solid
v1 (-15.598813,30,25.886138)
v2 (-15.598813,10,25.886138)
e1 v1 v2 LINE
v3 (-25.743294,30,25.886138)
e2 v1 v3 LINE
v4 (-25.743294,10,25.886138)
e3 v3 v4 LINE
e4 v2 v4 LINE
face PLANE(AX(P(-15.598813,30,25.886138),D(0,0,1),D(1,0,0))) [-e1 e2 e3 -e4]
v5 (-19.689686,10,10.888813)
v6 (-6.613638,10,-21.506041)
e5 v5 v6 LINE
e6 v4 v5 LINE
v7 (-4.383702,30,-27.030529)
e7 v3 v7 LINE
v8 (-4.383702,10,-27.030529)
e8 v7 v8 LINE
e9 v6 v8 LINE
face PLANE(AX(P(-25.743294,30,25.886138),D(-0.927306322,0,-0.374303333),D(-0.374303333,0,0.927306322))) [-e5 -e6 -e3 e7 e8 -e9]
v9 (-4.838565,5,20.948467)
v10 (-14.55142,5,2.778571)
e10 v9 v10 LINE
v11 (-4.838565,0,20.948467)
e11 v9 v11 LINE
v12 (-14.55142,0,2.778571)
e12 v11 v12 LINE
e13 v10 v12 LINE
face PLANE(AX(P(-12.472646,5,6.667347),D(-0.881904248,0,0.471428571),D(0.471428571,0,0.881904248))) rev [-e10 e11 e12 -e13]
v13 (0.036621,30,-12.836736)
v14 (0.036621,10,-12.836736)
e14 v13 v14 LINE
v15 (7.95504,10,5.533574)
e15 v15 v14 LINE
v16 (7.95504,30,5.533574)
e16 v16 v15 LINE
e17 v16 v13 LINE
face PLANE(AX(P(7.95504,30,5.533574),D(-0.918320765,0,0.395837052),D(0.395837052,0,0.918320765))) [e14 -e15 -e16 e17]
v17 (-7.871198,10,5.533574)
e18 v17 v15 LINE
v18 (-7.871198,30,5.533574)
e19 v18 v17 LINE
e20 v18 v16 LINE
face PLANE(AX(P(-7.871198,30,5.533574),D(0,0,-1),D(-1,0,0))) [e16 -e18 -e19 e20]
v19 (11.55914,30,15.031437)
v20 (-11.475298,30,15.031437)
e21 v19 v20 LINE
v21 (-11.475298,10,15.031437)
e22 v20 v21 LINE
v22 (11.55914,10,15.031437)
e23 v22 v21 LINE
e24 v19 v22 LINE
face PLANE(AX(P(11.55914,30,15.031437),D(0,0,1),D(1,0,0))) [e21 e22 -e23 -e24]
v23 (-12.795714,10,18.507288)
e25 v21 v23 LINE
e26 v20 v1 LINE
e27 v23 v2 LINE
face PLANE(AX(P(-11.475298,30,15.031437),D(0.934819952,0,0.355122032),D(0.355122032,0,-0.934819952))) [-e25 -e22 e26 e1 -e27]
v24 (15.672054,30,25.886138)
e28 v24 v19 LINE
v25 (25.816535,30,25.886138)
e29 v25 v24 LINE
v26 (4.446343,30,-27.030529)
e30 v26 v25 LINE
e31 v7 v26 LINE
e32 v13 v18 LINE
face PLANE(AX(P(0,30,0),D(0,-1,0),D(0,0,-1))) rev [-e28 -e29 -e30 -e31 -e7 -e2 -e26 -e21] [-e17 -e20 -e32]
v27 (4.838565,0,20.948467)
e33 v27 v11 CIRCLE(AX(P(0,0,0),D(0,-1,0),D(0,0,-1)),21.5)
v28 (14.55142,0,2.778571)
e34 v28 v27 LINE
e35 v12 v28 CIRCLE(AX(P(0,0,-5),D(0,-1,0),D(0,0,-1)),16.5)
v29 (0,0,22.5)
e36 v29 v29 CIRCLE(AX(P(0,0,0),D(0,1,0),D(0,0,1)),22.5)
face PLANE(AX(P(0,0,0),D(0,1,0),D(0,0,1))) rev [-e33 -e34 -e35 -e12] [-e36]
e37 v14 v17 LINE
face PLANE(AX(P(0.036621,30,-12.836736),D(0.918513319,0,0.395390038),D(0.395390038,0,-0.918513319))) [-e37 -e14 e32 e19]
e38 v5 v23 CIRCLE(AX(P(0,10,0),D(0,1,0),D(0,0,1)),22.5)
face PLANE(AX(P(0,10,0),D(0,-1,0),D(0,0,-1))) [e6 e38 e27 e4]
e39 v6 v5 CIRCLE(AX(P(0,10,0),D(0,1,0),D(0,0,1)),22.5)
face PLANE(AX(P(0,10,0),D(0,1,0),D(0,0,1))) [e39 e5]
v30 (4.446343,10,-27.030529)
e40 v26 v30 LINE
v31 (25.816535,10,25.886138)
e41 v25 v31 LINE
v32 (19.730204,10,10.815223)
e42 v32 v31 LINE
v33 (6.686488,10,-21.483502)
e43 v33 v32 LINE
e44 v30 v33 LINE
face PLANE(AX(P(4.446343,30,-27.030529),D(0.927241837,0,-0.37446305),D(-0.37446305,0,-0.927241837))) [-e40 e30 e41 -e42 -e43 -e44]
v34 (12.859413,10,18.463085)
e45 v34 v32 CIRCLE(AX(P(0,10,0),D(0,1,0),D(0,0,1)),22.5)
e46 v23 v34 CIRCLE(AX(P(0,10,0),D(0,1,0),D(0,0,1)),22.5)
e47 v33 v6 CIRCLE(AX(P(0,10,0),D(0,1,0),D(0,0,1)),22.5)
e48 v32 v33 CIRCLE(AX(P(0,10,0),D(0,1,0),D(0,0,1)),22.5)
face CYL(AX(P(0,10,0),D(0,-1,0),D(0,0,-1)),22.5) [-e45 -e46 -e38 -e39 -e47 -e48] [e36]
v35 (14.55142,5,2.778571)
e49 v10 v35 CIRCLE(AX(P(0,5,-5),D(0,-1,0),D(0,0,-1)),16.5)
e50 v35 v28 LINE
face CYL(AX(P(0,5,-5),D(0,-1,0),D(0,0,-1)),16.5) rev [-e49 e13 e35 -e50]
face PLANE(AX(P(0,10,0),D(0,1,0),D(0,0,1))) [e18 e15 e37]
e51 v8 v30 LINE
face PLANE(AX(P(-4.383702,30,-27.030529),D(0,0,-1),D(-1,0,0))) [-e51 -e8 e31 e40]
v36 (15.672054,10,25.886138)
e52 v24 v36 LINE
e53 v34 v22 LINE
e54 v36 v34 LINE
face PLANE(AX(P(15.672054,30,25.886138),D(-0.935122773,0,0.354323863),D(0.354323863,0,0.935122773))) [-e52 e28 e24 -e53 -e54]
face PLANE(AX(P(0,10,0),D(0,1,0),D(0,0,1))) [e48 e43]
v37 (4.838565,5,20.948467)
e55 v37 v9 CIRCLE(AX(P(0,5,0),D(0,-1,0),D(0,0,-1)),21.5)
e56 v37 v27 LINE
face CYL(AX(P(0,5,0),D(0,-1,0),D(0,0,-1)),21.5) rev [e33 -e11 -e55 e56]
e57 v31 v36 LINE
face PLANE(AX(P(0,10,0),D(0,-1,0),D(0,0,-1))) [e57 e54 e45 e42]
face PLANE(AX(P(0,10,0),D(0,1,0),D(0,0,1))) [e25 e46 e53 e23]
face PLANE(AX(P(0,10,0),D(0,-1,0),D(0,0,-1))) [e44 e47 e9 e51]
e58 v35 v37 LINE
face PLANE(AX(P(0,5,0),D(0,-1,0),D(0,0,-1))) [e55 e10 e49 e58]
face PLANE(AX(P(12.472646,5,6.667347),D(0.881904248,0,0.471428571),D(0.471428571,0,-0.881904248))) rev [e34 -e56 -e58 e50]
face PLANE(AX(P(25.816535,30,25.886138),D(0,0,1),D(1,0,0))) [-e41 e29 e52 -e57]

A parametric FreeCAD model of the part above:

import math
import FreeCAD as App
import Part
import Sketcher


def add_polygon(sketch, points):
    """Adds a closed chain of lines whose ends are joined by coincident constraints."""
    first, n = sketch.GeometryCount, len(points)
    for a, b in zip(points, points[1:] + points[:1]):
        sketch.addGeometry(Part.LineSegment(App.Vector(*a, 0), App.Vector(*b, 0)), False)
    for i in range(n):
        sketch.addConstraint(Sketcher.Constraint("Coincident", first + i, 2, first + (i + 1) % n, 1))

doc = App.newDocument("Part")
body = doc.addObject("PartDesign::Body", "Body")

sketch1 = doc.addObject("Sketcher::SketchObject", "Sketch")
body.addObject(sketch1)
sketch1.AttachmentSupport = (doc.XZ_Plane, [""])
sketch1.MapMode = "FlatFace"
sketch1.addGeometry(Part.Circle(App.Vector(0, 0, 0), App.Vector(0, 0, 1), 22.5), False)
sketch1.addConstraint([
    Sketcher.Constraint("Coincident", 0, 3, -1, 1),
    Sketcher.Constraint("Diameter", 0, 45.0),
])
pad1 = doc.addObject("PartDesign::Pad", "Pad")
body.addObject(pad1)
pad1.Profile = sketch1
pad1.Length = 10
pad1.Reversed = True

sketch2 = doc.addObject("Sketcher::SketchObject", "Sketch001")
body.addObject(sketch2)
sketch2.AttachmentSupport = (doc.XZ_Plane, [""])
sketch2.MapMode = "FlatFace"
sketch2.AttachmentOffset = App.Placement(App.Vector(0, 0, -10), App.Rotation())
add_polygon(sketch2, [(4.446343, -27.030529), (-4.383702, -27.030529), (-25.743294, 25.886138), (-15.598813, 25.886138), (-11.475298, 15.031437), (11.55914, 15.031437), (15.672054, 25.886138), (25.816535, 25.886138)])
add_polygon(sketch2, [(0.036621, -12.836736), (7.95504, 5.533574), (-7.871198, 5.533574)])
sketch2.addConstraint([
    Sketcher.Constraint("Horizontal", 0),
    Sketcher.Constraint("Horizontal", 2),
    Sketcher.Constraint("Horizontal", 4),
    Sketcher.Constraint("Horizontal", 6),
    Sketcher.Constraint("Horizontal", 9),
    Sketcher.Constraint("Horizontal", 2, 2, 5, 2),
    Sketcher.Constraint("Equal", 2, 6),
    Sketcher.Constraint("DistanceX", 2, 1, 2, 2, 10.144481),
    Sketcher.Constraint("DistanceX", 4, 1, 4, 2, 23.034438),
    Sketcher.Constraint("DistanceX", 9, 2, 9, 1, 15.826239),
    Sketcher.Constraint("DistanceX", 0, 2, -1, 1, 4.383702),
    Sketcher.Constraint("DistanceX", 3, 2, -1, 1, 11.475298),
    Sketcher.Constraint("DistanceX", 9, 2, -1, 1, 7.871198),
    Sketcher.Constraint("DistanceY", 3, 2, 2, 2, 10.854701),
    Sketcher.Constraint("Distance", 3, 11.611542),
    Sketcher.Constraint("Distance", 5, 11.607782),
    Sketcher.Constraint("Distance", 8, 20.00424),
    Sketcher.Constraint("DistanceX", 0, 2, 0, 1, 8.830045),
    Sketcher.Constraint("DistanceY", 0, 2, -1, 1, 27.030529),
    Sketcher.Constraint("DistanceX", -1, 1, 10, 2, 0.036621),
    Sketcher.Constraint("Distance", 1, 57.064926),
    Sketcher.Constraint("DistanceY", -1, 1, 8, 2, 5.533574),
])
pad2 = doc.addObject("PartDesign::Pad", "Pad001")
body.addObject(pad2)
pad2.Profile = sketch2
pad2.Length = 20
pad2.Reversed = True

sketch3 = doc.addObject("Sketcher::SketchObject", "Sketch002")
body.addObject(sketch3)
sketch3.AttachmentSupport = (doc.XZ_Plane, [""])
sketch3.MapMode = "FlatFace"
sketch3.addGeometry([
    Part.LineSegment(App.Vector(14.55142, 2.778571, 0), App.Vector(4.838565, 20.948467, 0)),
    Part.ArcOfCircle(Part.Circle(App.Vector(0, 0, 0), App.Vector(0, 0, 1), 21.5), math.radians(76.994209), math.radians(103.005791)),
    Part.LineSegment(App.Vector(-4.838565, 20.948467, 0), App.Vector(-14.55142, 2.778571, 0)),
    Part.ArcOfCircle(Part.Circle(App.Vector(0, -5, 0), App.Vector(0, 0, 1), 16.5), math.radians(151.872932), math.radians(388.127068)),
], False)
sketch3.addConstraint([
    Sketcher.Constraint("Coincident", 0, 2, 1, 1),
    Sketcher.Constraint("Coincident", 1, 2, 2, 1),
    Sketcher.Constraint("Tangent", 2, 2, 3, 1),
    Sketcher.Constraint("Tangent", 3, 2, 0, 1),
    Sketcher.Constraint("Coincident", 1, 3, -1, 1),
    Sketcher.Constraint("Symmetric", 2, 2, 3, 2, -2),
    Sketcher.Constraint("Radius", 1, 21.5),
    Sketcher.Constraint("Radius", 3, 16.5),
    Sketcher.Constraint("DistanceY", 3, 3, -1, 1, 5.0),
    Sketcher.Constraint("DistanceX", 2, 2, -1, 1, 14.55142),
])
pocket1 = doc.addObject("PartDesign::Pocket", "Pocket")
body.addObject(pocket1)
pocket1.Profile = sketch3
pocket1.Length = 5

doc.recompute()
